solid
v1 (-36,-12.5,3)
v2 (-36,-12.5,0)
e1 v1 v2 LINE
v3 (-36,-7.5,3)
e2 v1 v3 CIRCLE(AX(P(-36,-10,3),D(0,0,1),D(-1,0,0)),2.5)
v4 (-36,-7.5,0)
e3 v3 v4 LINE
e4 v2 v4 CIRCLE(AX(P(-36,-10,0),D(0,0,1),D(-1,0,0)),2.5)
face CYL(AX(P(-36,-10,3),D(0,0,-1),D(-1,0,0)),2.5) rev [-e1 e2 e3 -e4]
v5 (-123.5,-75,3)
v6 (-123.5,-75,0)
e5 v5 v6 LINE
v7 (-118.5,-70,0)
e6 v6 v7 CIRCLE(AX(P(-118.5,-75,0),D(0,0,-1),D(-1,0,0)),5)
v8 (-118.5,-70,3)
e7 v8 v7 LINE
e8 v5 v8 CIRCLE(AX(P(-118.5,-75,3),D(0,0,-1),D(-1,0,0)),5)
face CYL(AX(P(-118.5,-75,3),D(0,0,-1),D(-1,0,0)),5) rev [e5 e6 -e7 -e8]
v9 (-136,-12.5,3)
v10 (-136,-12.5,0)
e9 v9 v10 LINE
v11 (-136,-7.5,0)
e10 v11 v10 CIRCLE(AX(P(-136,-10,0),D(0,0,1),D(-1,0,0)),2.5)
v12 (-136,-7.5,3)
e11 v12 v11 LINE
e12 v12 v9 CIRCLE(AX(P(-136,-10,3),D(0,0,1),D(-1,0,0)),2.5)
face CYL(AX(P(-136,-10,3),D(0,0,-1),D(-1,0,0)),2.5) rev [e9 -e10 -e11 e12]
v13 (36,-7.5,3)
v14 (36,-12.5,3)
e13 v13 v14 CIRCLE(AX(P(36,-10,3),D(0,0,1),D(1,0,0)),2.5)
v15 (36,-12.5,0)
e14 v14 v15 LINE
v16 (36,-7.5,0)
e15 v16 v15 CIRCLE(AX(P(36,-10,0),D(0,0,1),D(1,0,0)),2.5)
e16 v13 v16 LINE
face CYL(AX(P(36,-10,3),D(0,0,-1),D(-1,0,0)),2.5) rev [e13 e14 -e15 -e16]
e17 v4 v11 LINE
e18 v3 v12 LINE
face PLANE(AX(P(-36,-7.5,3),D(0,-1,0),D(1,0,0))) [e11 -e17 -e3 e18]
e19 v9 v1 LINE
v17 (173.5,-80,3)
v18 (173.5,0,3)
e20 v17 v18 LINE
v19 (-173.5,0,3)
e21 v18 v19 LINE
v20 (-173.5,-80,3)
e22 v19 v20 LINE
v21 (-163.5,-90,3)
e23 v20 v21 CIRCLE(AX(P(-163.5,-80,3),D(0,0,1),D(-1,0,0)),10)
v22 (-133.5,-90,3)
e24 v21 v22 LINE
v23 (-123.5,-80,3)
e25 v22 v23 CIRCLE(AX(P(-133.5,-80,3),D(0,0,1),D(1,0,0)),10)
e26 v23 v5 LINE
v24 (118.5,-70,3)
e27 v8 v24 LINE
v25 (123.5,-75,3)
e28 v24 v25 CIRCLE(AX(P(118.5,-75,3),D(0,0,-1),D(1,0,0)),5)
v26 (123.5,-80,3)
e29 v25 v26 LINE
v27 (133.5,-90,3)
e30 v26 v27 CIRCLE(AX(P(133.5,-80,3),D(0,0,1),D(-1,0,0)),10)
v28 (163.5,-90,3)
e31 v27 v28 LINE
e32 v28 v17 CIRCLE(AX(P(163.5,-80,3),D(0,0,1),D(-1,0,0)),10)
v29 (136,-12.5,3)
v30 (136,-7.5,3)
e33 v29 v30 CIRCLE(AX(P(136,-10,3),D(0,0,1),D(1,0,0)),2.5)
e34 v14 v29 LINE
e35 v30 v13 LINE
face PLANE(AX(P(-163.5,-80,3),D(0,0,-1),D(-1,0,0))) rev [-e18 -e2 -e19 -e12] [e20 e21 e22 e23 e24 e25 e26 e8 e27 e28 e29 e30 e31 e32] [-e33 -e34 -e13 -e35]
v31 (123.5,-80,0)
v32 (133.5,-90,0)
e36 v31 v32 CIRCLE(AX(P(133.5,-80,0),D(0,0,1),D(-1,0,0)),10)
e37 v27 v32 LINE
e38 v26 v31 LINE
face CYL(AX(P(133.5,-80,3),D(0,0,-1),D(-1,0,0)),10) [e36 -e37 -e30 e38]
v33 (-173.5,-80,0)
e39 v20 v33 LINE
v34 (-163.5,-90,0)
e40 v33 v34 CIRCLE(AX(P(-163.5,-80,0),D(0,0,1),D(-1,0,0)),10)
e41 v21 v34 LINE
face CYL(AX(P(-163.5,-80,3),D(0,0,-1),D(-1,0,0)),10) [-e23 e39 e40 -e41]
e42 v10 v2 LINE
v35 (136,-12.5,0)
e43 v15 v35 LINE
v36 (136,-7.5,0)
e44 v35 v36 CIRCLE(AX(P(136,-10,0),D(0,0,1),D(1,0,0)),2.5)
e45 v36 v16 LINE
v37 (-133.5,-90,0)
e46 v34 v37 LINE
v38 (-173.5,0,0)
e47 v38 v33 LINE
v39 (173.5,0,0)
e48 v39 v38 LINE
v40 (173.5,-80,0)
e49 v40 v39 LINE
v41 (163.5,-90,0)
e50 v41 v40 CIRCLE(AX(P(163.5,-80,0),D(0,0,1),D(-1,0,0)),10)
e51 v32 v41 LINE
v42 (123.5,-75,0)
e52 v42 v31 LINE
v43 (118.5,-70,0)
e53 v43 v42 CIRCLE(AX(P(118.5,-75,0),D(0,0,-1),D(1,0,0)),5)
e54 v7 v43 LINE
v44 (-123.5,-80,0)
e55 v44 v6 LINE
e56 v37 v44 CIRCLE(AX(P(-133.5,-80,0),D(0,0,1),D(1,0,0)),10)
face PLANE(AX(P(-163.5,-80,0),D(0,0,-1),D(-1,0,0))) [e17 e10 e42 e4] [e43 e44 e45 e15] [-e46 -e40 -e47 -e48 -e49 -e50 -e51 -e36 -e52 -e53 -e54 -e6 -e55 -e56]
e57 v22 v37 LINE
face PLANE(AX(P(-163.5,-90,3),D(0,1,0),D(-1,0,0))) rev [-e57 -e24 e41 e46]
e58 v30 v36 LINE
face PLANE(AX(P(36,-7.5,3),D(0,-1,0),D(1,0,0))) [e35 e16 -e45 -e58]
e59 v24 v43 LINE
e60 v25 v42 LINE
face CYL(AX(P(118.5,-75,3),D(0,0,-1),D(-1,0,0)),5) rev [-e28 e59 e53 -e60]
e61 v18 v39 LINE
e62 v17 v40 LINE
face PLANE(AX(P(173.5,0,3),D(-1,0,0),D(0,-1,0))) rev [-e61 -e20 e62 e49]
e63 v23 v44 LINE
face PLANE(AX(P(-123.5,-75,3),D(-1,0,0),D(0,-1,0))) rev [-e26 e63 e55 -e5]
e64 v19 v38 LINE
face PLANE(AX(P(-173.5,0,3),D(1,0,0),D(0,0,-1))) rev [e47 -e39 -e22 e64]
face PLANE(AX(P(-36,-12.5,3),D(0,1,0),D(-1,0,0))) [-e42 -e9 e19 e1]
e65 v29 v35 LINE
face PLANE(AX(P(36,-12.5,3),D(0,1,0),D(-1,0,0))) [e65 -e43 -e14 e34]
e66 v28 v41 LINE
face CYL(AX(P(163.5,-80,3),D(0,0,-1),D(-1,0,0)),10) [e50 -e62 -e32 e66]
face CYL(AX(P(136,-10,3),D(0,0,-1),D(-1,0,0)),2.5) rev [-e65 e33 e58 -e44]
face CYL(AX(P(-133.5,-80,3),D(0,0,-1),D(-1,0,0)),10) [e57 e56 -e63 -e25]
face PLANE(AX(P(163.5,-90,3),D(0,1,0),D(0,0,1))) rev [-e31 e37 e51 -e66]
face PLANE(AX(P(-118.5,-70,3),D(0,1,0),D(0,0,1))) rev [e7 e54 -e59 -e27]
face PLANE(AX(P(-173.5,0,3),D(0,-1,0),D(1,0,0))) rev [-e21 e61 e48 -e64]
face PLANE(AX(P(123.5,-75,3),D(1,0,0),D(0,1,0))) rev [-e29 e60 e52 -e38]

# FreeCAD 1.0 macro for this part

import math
import FreeCAD as App
import Part
import Sketcher

V = App.Vector
Q = App.Units.Quantity

doc = App.newDocument("Part")
body = doc.addObject("PartDesign::Body", "Body")

sketch1 = body.newObject("Sketcher::SketchObject", "Sketch")
sketch1.AttachmentSupport = (doc.getObject("XY_Plane"), [""])
sketch1.MapMode = "FlatFace"
sketch1.addGeometry(Part.LineSegment(V(173.5, 0, 0), V(-173.5, 0, 0)), False)
sketch1.addGeometry(Part.LineSegment(V(-173.5, 0, 0), V(-173.5, -80, 0)), False)
sketch1.addGeometry(Part.ArcOfCircle(Part.Circle(V(-163.5, -80, 0), V(0, 0, 1), 10), math.radians(180), math.radians(270)), False)
sketch1.addGeometry(Part.LineSegment(V(-163.5, -90, 0), V(-133.5, -90, 0)), False)
sketch1.addGeometry(Part.ArcOfCircle(Part.Circle(V(-133.5, -80, 0), V(0, 0, 1), 10), math.radians(-90), math.radians(0)), False)
sketch1.addGeometry(Part.LineSegment(V(-123.5, -80, 0), V(-123.5, -75, 0)), False)
sketch1.addGeometry(Part.ArcOfCircle(Part.Circle(V(-118.5, -75, 0), V(0, 0, 1), 5), math.radians(90), math.radians(180)), False)
sketch1.addGeometry(Part.LineSegment(V(-118.5, -70, 0), V(118.5, -70, 0)), False)
sketch1.addGeometry(Part.ArcOfCircle(Part.Circle(V(118.5, -75, 0), V(0, 0, 1), 5), math.radians(0), math.radians(90)), False)
sketch1.addGeometry(Part.LineSegment(V(123.5, -75, 0), V(123.5, -80, 0)), False)
sketch1.addGeometry(Part.ArcOfCircle(Part.Circle(V(133.5, -80, 0), V(0, 0, 1), 10), math.radians(180), math.radians(270)), False)
sketch1.addGeometry(Part.LineSegment(V(133.5, -90, 0), V(163.5, -90, 0)), False)
sketch1.addGeometry(Part.ArcOfCircle(Part.Circle(V(163.5, -80, 0), V(0, 0, 1), 10), math.radians(-90), math.radians(0)), False)
sketch1.addGeometry(Part.LineSegment(V(173.5, -80, 0), V(173.5, 0, 0)), False)
sketch1.addGeometry(Part.LineSegment(V(36, -7.5, 0), V(136, -7.5, 0)), False)
sketch1.addGeometry(Part.ArcOfCircle(Part.Circle(V(136, -10, 0), V(0, 0, 1), 2.5), math.radians(-90), math.radians(90)), False)
sketch1.addGeometry(Part.LineSegment(V(136, -12.5, 0), V(36, -12.5, 0)), False)
sketch1.addGeometry(Part.ArcOfCircle(Part.Circle(V(36, -10, 0), V(0, 0, 1), 2.5), math.radians(90), math.radians(270)), False)
sketch1.addGeometry(Part.ArcOfCircle(Part.Circle(V(-36, -10, 0), V(0, 0, 1), 2.5), math.radians(-90), math.radians(90)), False)
sketch1.addGeometry(Part.LineSegment(V(-36, -12.5, 0), V(-136, -12.5, 0)), False)
sketch1.addGeometry(Part.ArcOfCircle(Part.Circle(V(-136, -10, 0), V(0, 0, 1), 2.5), math.radians(90), math.radians(270)), False)
sketch1.addGeometry(Part.LineSegment(V(-136, -7.5, 0), V(-36, -7.5, 0)), False)
sketch1.addConstraint(Sketcher.Constraint("Coincident", 0, 2, 1, 1))
sketch1.addConstraint(Sketcher.Constraint("Tangent", 1, 2, 2, 1))
sketch1.addConstraint(Sketcher.Constraint("Tangent", 2, 2, 3, 1))
sketch1.addConstraint(Sketcher.Constraint("Tangent", 3, 2, 4, 1))
sketch1.addConstraint(Sketcher.Constraint("Tangent", 4, 2, 5, 1))
sketch1.addConstraint(Sketcher.Constraint("Tangent", 5, 2, 6, 2))
sketch1.addConstraint(Sketcher.Constraint("Tangent", 6, 1, 7, 1))
sketch1.addConstraint(Sketcher.Constraint("Tangent", 7, 2, 8, 2))
sketch1.addConstraint(Sketcher.Constraint("Tangent", 8, 1, 9, 1))
sketch1.addConstraint(Sketcher.Constraint("Tangent", 9, 2, 10, 1))
sketch1.addConstraint(Sketcher.Constraint("Tangent", 10, 2, 11, 1))
sketch1.addConstraint(Sketcher.Constraint("Tangent", 11, 2, 12, 1))
sketch1.addConstraint(Sketcher.Constraint("Tangent", 12, 2, 13, 1))
sketch1.addConstraint(Sketcher.Constraint("Coincident", 13, 2, 0, 1))
sketch1.addConstraint(Sketcher.Constraint("Tangent", 14, 2, 15, 2))
sketch1.addConstraint(Sketcher.Constraint("Tangent", 15, 1, 16, 1))
sketch1.addConstraint(Sketcher.Constraint("Tangent", 16, 2, 17, 2))
sketch1.addConstraint(Sketcher.Constraint("Tangent", 17, 1, 14, 1))
sketch1.addConstraint(Sketcher.Constraint("Tangent", 18, 1, 19, 1))
sketch1.addConstraint(Sketcher.Constraint("Tangent", 19, 2, 20, 2))
sketch1.addConstraint(Sketcher.Constraint("Tangent", 20, 1, 21, 1))
sketch1.addConstraint(Sketcher.Constraint("Tangent", 21, 2, 18, 2))
sketch1.addConstraint(Sketcher.Constraint("Horizontal", 0))
sketch1.addConstraint(Sketcher.Constraint("Vertical", 1))
sketch1.addConstraint(Sketcher.Constraint("Horizontal", 3))
sketch1.addConstraint(Sketcher.Constraint("Vertical", 5))
sketch1.addConstraint(Sketcher.Constraint("Horizontal", 7))
sketch1.addConstraint(Sketcher.Constraint("Vertical", 9))
sketch1.addConstraint(Sketcher.Constraint("Horizontal", 11))
sketch1.addConstraint(Sketcher.Constraint("Vertical", 13))
sketch1.addConstraint(Sketcher.Constraint("Horizontal", 14))
sketch1.addConstraint(Sketcher.Constraint("Horizontal", 16))
sketch1.addConstraint(Sketcher.Constraint("Horizontal", 19))
sketch1.addConstraint(Sketcher.Constraint("Horizontal", 21))
sketch1.addConstraint(Sketcher.Constraint("Equal", 2, 4))
sketch1.addConstraint(Sketcher.Constraint("Equal", 6, 8))
sketch1.addConstraint(Sketcher.Constraint("Equal", 4, 10))
sketch1.addConstraint(Sketcher.Constraint("Equal", 10, 12))
sketch1.addConstraint(Sketcher.Constraint("Equal", 17, 18))
sketch1.addConstraint(Sketcher.Constraint("Symmetric", 0, 2, 13, 2, -1, 1))
sketch1.addConstraint(Sketcher.Constraint("Symmetric", 4, 3, 10, 3, -2))
sketch1.addConstraint(Sketcher.Constraint("Symmetric", 17, 3, 18, 3, -2))
sketch1.addConstraint(Sketcher.Constraint("Equal", 16, 19))
sketch1.addConstraint(Sketcher.Constraint("Radius", 2, Q("10 mm")))
sketch1.addConstraint(Sketcher.Constraint("Radius", 6, Q("5 mm")))
sketch1.addConstraint(Sketcher.Constraint("Radius", 15, Q("2.5 mm")))
sketch1.addConstraint(Sketcher.Constraint("DistanceX", 0, 2, 0, 1, Q("347 mm")))
sketch1.addConstraint(Sketcher.Constraint("DistanceX", 3, 1, 3, 2, Q("30 mm")))
sketch1.addConstraint(Sketcher.Constraint("DistanceX", 14, 1, 14, 2, Q("100 mm")))
sketch1.addConstraint(Sketcher.Constraint("DistanceY", 1, 2, 1, 1, Q("80 mm")))
sketch1.addConstraint(Sketcher.Constraint("DistanceY", 5, 1, 5, 2, Q("5 mm")))
sketch1.addConstraint(Sketcher.Constraint("DistanceX", -1, 1, 15, 3, Q("136 mm")))
sketch1.addConstraint(Sketcher.Constraint("DistanceY", 15, 3, -1, 1, Q("10 mm")))
pad1 = body.newObject("PartDesign::Pad", "Pad")
pad1.Profile = sketch1
pad1.Length = 3

doc.recompute()
